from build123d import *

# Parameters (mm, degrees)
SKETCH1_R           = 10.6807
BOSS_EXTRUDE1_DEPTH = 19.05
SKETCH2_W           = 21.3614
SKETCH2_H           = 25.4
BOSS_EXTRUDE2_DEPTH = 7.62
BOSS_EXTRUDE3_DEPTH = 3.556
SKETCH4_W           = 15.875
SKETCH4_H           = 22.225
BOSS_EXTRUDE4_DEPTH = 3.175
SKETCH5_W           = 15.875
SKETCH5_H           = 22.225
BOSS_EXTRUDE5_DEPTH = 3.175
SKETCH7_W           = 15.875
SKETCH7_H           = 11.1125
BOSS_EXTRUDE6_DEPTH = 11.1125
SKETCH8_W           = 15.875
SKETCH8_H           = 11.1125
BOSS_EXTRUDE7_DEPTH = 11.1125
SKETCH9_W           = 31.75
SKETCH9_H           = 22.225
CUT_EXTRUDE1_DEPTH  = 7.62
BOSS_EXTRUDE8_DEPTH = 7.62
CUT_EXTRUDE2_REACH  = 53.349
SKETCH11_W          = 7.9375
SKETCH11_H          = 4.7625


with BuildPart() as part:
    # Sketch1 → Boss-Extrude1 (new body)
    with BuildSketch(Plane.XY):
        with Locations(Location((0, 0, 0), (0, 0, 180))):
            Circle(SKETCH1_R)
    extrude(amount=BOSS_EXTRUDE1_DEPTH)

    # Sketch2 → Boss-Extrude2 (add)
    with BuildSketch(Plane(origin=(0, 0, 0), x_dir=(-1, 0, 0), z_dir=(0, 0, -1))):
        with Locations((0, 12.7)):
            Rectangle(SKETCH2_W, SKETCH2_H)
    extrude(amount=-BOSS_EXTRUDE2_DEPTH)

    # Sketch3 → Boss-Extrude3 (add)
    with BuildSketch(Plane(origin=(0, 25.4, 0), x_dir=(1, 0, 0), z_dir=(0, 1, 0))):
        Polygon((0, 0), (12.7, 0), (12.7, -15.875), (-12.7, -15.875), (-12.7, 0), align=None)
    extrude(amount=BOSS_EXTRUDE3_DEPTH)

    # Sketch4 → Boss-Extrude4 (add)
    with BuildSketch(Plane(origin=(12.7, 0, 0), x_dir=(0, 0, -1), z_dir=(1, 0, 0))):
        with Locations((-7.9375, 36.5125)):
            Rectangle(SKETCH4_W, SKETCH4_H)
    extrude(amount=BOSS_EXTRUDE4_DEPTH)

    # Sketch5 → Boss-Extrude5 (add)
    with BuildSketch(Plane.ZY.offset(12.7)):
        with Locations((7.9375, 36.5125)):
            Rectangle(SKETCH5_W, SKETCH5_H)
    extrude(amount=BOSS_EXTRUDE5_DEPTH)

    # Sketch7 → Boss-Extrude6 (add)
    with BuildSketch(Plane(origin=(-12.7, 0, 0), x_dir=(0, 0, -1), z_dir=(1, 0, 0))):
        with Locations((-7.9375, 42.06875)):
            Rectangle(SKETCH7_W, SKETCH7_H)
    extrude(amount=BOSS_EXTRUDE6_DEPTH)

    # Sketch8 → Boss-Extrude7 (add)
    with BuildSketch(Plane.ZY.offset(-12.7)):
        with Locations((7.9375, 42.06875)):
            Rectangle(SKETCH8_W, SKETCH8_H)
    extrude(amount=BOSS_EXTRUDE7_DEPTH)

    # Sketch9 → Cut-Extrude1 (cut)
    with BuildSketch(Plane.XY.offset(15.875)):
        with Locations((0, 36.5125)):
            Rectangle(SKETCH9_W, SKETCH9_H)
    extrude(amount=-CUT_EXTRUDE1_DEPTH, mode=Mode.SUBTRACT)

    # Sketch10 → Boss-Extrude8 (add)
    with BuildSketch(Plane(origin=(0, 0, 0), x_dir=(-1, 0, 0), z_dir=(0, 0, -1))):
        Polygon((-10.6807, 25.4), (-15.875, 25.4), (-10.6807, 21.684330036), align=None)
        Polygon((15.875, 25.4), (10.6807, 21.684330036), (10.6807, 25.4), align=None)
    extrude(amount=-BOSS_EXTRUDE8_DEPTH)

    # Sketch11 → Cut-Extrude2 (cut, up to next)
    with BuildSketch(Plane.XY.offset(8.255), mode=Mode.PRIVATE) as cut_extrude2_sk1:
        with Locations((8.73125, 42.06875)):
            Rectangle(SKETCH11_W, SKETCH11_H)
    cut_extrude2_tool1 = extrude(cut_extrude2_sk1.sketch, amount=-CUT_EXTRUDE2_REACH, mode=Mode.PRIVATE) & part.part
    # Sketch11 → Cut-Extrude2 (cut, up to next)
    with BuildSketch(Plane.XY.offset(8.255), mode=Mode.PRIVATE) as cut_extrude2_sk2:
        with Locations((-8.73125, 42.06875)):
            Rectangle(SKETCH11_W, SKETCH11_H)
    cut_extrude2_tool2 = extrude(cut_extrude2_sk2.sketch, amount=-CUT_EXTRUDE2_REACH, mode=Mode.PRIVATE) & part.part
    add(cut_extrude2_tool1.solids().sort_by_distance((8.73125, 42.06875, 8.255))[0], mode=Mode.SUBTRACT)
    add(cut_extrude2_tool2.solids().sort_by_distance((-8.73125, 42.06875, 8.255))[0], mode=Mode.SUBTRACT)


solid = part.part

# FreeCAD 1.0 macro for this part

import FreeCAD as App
import Part
import Sketcher

V = App.Vector
Q = App.Units.Quantity

doc = App.newDocument("Part")
params = doc.addObject("Spreadsheet::Sheet", "Params")
for row, (alias, value) in enumerate([
    ("sketch1_diameter", "0.841 in"),
    ("pad1_length", "0.75 in"),
    ("sketch2_height", "1 in"),
    ("sketch2_width", "0.841 in"),
    ("pad2_length", "0.3 in"),
    ("sketch3_width", "1 in"),
    ("sketch3_height", "0.625 in"),
    ("pad3_length", "0.14 in"),
    ("sketch4_width", "0.875 in"),
    ("sketch4_height", "0.625 in"),
    ("pad4_length", "0.125 in"),
    ("sketch5_width", "0.875 in"),
    ("sketch5_height", "0.625 in"),
    ("pad5_length", "0.125 in"),
    ("sketch6_width", "0.4375 in"),
    ("sketch6_height", "0.625 in"),
    ("pad6_length", "0.4375 in"),
    ("sketch7_width", "0.4375 in"),
    ("sketch7_height", "0.625 in"),
    ("pad7_length", "0.4375 in"),
    ("sketch8_width", "1.25 in"),
    ("sketch8_height", "0.875 in"),
    ("pocket1_length", "0.3 in"),
    ("pad8_length", "0.3 in"),
    ("sketch10_width", "0.3125 in"),
    ("sketch10_height", "0.1875 in"),
    ("sketch11_width", "0.3125 in"),
    ("sketch11_height", "0.1875 in"),
], start=1):
    params.set(f"A{row}", alias)
    params.set(f"B{row}", "=" + value)
    params.setAlias(f"B{row}", alias)

body = doc.addObject("PartDesign::Body", "Body")

# Sketch on XY plane
sketch1 = doc.addObject("Sketcher::SketchObject", "Sketch")
body.addObject(sketch1)
sketch1.AttachmentSupport = (doc.XY_Plane, [""])
sketch1.MapMode = "FlatFace"
sketch1.addGeometry(Part.Circle(V(0, 0, 0), V(0, 0, 1), 10.6807), False)
sketch1.addConstraint(Sketcher.Constraint("Coincident", 0, 3, -1, 1))
sketch1.addConstraint(Sketcher.Constraint("Diameter", 0, Q("0.841 in")))
sketch1.setExpression("Constraints[1]", "Params.sketch1_diameter")
pad1 = doc.addObject("PartDesign::Pad", "Pad")
body.addObject(pad1)
pad1.Profile = sketch1
pad1.setExpression("Length", "Params.pad1_length")

# Sketch on XY plane
sketch2 = doc.addObject("Sketcher::SketchObject", "Sketch001")
body.addObject(sketch2)
sketch2.AttachmentSupport = (doc.XY_Plane, [""])
sketch2.MapMode = "FlatFace"
sketch2.addGeometry(Part.LineSegment(V(10.6807, 25.4, 0), V(10.6807, 0, 0)), False)
sketch2.addGeometry(Part.LineSegment(V(10.6807, 0, 0), V(-10.6807, 0, 0)), False)
sketch2.addGeometry(Part.LineSegment(V(-10.6807, 0, 0), V(-10.6807, 25.4, 0)), False)
sketch2.addGeometry(Part.LineSegment(V(-10.6807, 25.4, 0), V(10.6807, 25.4, 0)), False)
sketch2.addConstraint(Sketcher.Constraint("Coincident", 0, 2, 1, 1))
sketch2.addConstraint(Sketcher.Constraint("Coincident", 1, 2, 2, 1))
sketch2.addConstraint(Sketcher.Constraint("Coincident", 2, 2, 3, 1))
sketch2.addConstraint(Sketcher.Constraint("Coincident", 3, 2, 0, 1))
sketch2.addConstraint(Sketcher.Constraint("Vertical", 0))
sketch2.addConstraint(Sketcher.Constraint("Horizontal", 1))
sketch2.addConstraint(Sketcher.Constraint("Vertical", 2))
sketch2.addConstraint(Sketcher.Constraint("Horizontal", 3))
sketch2.addConstraint(Sketcher.Constraint("Symmetric", 0, 2, 1, 2, -1, 1))
sketch2.addConstraint(Sketcher.Constraint("DistanceY", 0, 2, 0, 1, Q("1 in")))
sketch2.addConstraint(Sketcher.Constraint("DistanceX", 1, 2, 1, 1, Q("0.841 in")))
sketch2.setExpression("Constraints[9]", "Params.sketch2_height")
sketch2.setExpression("Constraints[10]", "Params.sketch2_width")
pad2 = doc.addObject("PartDesign::Pad", "Pad001")
body.addObject(pad2)
pad2.Profile = sketch2
pad2.setExpression("Length", "Params.pad2_length")

# Sketch on XZ plane
sketch3 = doc.addObject("Sketcher::SketchObject", "Sketch002")
body.addObject(sketch3)
sketch3.AttachmentSupport = (doc.XZ_Plane, [""])
sketch3.MapMode = "FlatFace"
sketch3.AttachmentOffset = App.Placement(V(0, 0, -1 * 25.4), App.Rotation())
sketch3.addGeometry(Part.LineSegment(V(12.7, 0, 0), V(-12.7, 0, 0)), False)
sketch3.addGeometry(Part.LineSegment(V(-12.7, 0, 0), V(-12.7, 15.875, 0)), False)
sketch3.addGeometry(Part.LineSegment(V(-12.7, 15.875, 0), V(12.7, 15.875, 0)), False)
sketch3.addGeometry(Part.LineSegment(V(12.7, 15.875, 0), V(12.7, 0, 0)), False)
sketch3.addConstraint(Sketcher.Constraint("Coincident", 0, 2, 1, 1))
sketch3.addConstraint(Sketcher.Constraint("Coincident", 1, 2, 2, 1))
sketch3.addConstraint(Sketcher.Constraint("Coincident", 2, 2, 3, 1))
sketch3.addConstraint(Sketcher.Constraint("Coincident", 3, 2, 0, 1))
sketch3.addConstraint(Sketcher.Constraint("Horizontal", 0))
sketch3.addConstraint(Sketcher.Constraint("Vertical", 1))
sketch3.addConstraint(Sketcher.Constraint("Horizontal", 2))
sketch3.addConstraint(Sketcher.Constraint("Vertical", 3))
sketch3.addConstraint(Sketcher.Constraint("Symmetric", 0, 2, 3, 2, -1, 1))
sketch3.addConstraint(Sketcher.Constraint("DistanceX", 0, 2, 0, 1, Q("1 in")))
sketch3.addConstraint(Sketcher.Constraint("DistanceY", 1, 1, 1, 2, Q("0.625 in")))
sketch3.setExpression("Constraints[9]", "Params.sketch3_width")
sketch3.setExpression("Constraints[10]", "Params.sketch3_height")
pad3 = doc.addObject("PartDesign::Pad", "Pad002")
body.addObject(pad3)
pad3.Profile = sketch3
pad3.setExpression("Length", "Params.pad3_length")
pad3.Reversed = True

# Sketch on YZ plane
sketch4 = doc.addObject("Sketcher::SketchObject", "Sketch003")
body.addObject(sketch4)
sketch4.AttachmentSupport = (doc.YZ_Plane, [""])
sketch4.MapMode = "FlatFace"
sketch4.AttachmentOffset = App.Placement(V(0, 0, 0.5 * 25.4), App.Rotation())
sketch4.addGeometry(Part.LineSegment(V(47.625, 15.875, 0), V(25.4, 15.875, 0)), False)
sketch4.addGeometry(Part.LineSegment(V(25.4, 15.875, 0), V(25.4, 0, 0)), False)
sketch4.addGeometry(Part.LineSegment(V(25.4, 0, 0), V(47.625, 0, 0)), False)
sketch4.addGeometry(Part.LineSegment(V(47.625, 0, 0), V(47.625, 15.875, 0)), False)
sketch4.addConstraint(Sketcher.Constraint("Coincident", 0, 2, 1, 1))
sketch4.addConstraint(Sketcher.Constraint("Coincident", 1, 2, 2, 1))
sketch4.addConstraint(Sketcher.Constraint("Coincident", 2, 2, 3, 1))
sketch4.addConstraint(Sketcher.Constraint("Coincident", 3, 2, 0, 1))
sketch4.addConstraint(Sketcher.Constraint("Horizontal", 0))
sketch4.addConstraint(Sketcher.Constraint("Vertical", 1))
sketch4.addConstraint(Sketcher.Constraint("Horizontal", 2))
sketch4.addConstraint(Sketcher.Constraint("Vertical", 3))
sketch4.addConstraint(Sketcher.Constraint("PointOnObject", 1, 2, -1))
sketch4.addConstraint(Sketcher.Constraint("DistanceX", -1, 1, 0, 2, Q("1 in")))
sketch4.addConstraint(Sketcher.Constraint("DistanceX", 0, 2, 0, 1, Q("0.875 in")))
sketch4.addConstraint(Sketcher.Constraint("DistanceY", 1, 2, 1, 1, Q("0.625 in")))
sketch4.setExpression("Constraints[10]", "Params.sketch4_width")
sketch4.setExpression("Constraints[11]", "Params.sketch4_height")
pad4 = doc.addObject("PartDesign::Pad", "Pad003")
body.addObject(pad4)
pad4.Profile = sketch4
pad4.setExpression("Length", "Params.pad4_length")

# Sketch on YZ plane
sketch5 = doc.addObject("Sketcher::SketchObject", "Sketch004")
body.addObject(sketch5)
sketch5.AttachmentSupport = (doc.YZ_Plane, [""])
sketch5.MapMode = "FlatFace"
sketch5.AttachmentOffset = App.Placement(V(0, 0, -0.5 * 25.4), App.Rotation())
sketch5.addGeometry(Part.LineSegment(V(47.625, 0, 0), V(25.4, 0, 0)), False)
sketch5.addGeometry(Part.LineSegment(V(25.4, 0, 0), V(25.4, 15.875, 0)), False)
sketch5.addGeometry(Part.LineSegment(V(25.4, 15.875, 0), V(47.625, 15.875, 0)), False)
sketch5.addGeometry(Part.LineSegment(V(47.625, 15.875, 0), V(47.625, 0, 0)), False)
sketch5.addConstraint(Sketcher.Constraint("Coincident", 0, 2, 1, 1))
sketch5.addConstraint(Sketcher.Constraint("Coincident", 1, 2, 2, 1))
sketch5.addConstraint(Sketcher.Constraint("Coincident", 2, 2, 3, 1))
sketch5.addConstraint(Sketcher.Constraint("Coincident", 3, 2, 0, 1))
sketch5.addConstraint(Sketcher.Constraint("Horizontal", 0))
sketch5.addConstraint(Sketcher.Constraint("Vertical", 1))
sketch5.addConstraint(Sketcher.Constraint("Horizontal", 2))
sketch5.addConstraint(Sketcher.Constraint("Vertical", 3))
sketch5.addConstraint(Sketcher.Constraint("PointOnObject", 0, 2, -1))
sketch5.addConstraint(Sketcher.Constraint("DistanceX", -1, 1, 0, 2, Q("1 in")))
sketch5.addConstraint(Sketcher.Constraint("DistanceX", 0, 2, 0, 1, Q("0.875 in")))
sketch5.addConstraint(Sketcher.Constraint("DistanceY", 1, 1, 1, 2, Q("0.625 in")))
sketch5.setExpression("Constraints[10]", "Params.sketch5_width")
sketch5.setExpression("Constraints[11]", "Params.sketch5_height")
pad5 = doc.addObject("PartDesign::Pad", "Pad004")
body.addObject(pad5)
pad5.Profile = sketch5
pad5.setExpression("Length", "Params.pad5_length")
pad5.Reversed = True

# Sketch on YZ plane
sketch6 = doc.addObject("Sketcher::SketchObject", "Sketch005")
body.addObject(sketch6)
sketch6.AttachmentSupport = (doc.YZ_Plane, [""])
sketch6.MapMode = "FlatFace"
sketch6.AttachmentOffset = App.Placement(V(0, 0, -0.5 * 25.4), App.Rotation())
sketch6.addGeometry(Part.LineSegment(V(47.625, 15.875, 0), V(36.5125, 15.875, 0)), False)
sketch6.addGeometry(Part.LineSegment(V(36.5125, 15.875, 0), V(36.5125, 0, 0)), False)
sketch6.addGeometry(Part.LineSegment(V(36.5125, 0, 0), V(47.625, 0, 0)), False)
sketch6.addGeometry(Part.LineSegment(V(47.625, 0, 0), V(47.625, 15.875, 0)), False)
sketch6.addConstraint(Sketcher.Constraint("Coincident", 0, 2, 1, 1))
sketch6.addConstraint(Sketcher.Constraint("Coincident", 1, 2, 2, 1))
sketch6.addConstraint(Sketcher.Constraint("Coincident", 2, 2, 3, 1))
sketch6.addConstraint(Sketcher.Constraint("Coincident", 3, 2, 0, 1))
sketch6.addConstraint(Sketcher.Constraint("Horizontal", 0))
sketch6.addConstraint(Sketcher.Constraint("Vertical", 1))
sketch6.addConstraint(Sketcher.Constraint("Horizontal", 2))
sketch6.addConstraint(Sketcher.Constraint("Vertical", 3))
sketch6.addConstraint(Sketcher.Constraint("PointOnObject", 1, 2, -1))
sketch6.addConstraint(Sketcher.Constraint("DistanceX", 0, 2, 0, 1, Q("0.4375 in")))
sketch6.addConstraint(Sketcher.Constraint("DistanceY", 1, 2, 1, 1, Q("0.625 in")))
sketch6.addConstraint(Sketcher.Constraint("DistanceX", -1, 1, 0, 2, Q("1.4375 in")))
sketch6.setExpression("Constraints[9]", "Params.sketch6_width")
sketch6.setExpression("Constraints[10]", "Params.sketch6_height")
pad6 = doc.addObject("PartDesign::Pad", "Pad005")
body.addObject(pad6)
pad6.Profile = sketch6
pad6.setExpression("Length", "Params.pad6_length")

# Sketch on YZ plane
sketch7 = doc.addObject("Sketcher::SketchObject", "Sketch006")
body.addObject(sketch7)
sketch7.AttachmentSupport = (doc.YZ_Plane, [""])
sketch7.MapMode = "FlatFace"
sketch7.AttachmentOffset = App.Placement(V(0, 0, 0.5 * 25.4), App.Rotation())
sketch7.addGeometry(Part.LineSegment(V(47.625, 0, 0), V(36.5125, 0, 0)), False)
sketch7.addGeometry(Part.LineSegment(V(36.5125, 0, 0), V(36.5125, 15.875, 0)), False)
sketch7.addGeometry(Part.LineSegment(V(36.5125, 15.875, 0), V(47.625, 15.875, 0)), False)
sketch7.addGeometry(Part.LineSegment(V(47.625, 15.875, 0), V(47.625, 0, 0)), False)
sketch7.addConstraint(Sketcher.Constraint("Coincident", 0, 2, 1, 1))
sketch7.addConstraint(Sketcher.Constraint("Coincident", 1, 2, 2, 1))
sketch7.addConstraint(Sketcher.Constraint("Coincident", 2, 2, 3, 1))
sketch7.addConstraint(Sketcher.Constraint("Coincident", 3, 2, 0, 1))
sketch7.addConstraint(Sketcher.Constraint("Horizontal", 0))
sketch7.addConstraint(Sketcher.Constraint("Vertical", 1))
sketch7.addConstraint(Sketcher.Constraint("Horizontal", 2))
sketch7.addConstraint(Sketcher.Constraint("Vertical", 3))
sketch7.addConstraint(Sketcher.Constraint("PointOnObject", 0, 2, -1))
sketch7.addConstraint(Sketcher.Constraint("DistanceX", 0, 2, 0, 1, Q("0.4375 in")))
sketch7.addConstraint(Sketcher.Constraint("DistanceY", 1, 1, 1, 2, Q("0.625 in")))
sketch7.addConstraint(Sketcher.Constraint("DistanceX", -1, 1, 0, 2, Q("1.4375 in")))
sketch7.setExpression("Constraints[9]", "Params.sketch7_width")
sketch7.setExpression("Constraints[10]", "Params.sketch7_height")
pad7 = doc.addObject("PartDesign::Pad", "Pad006")
body.addObject(pad7)
pad7.Profile = sketch7
pad7.setExpression("Length", "Params.pad7_length")
pad7.Reversed = True

# Sketch on XY plane
sketch8 = doc.addObject("Sketcher::SketchObject", "Sketch007")
body.addObject(sketch8)
sketch8.AttachmentSupport = (doc.XY_Plane, [""])
sketch8.MapMode = "FlatFace"
sketch8.AttachmentOffset = App.Placement(V(0, 0, 0.625 * 25.4), App.Rotation())
sketch8.addGeometry(Part.LineSegment(V(-15.875, 47.625, 0), V(-15.875, 25.4, 0)), False)
sketch8.addGeometry(Part.LineSegment(V(-15.875, 25.4, 0), V(15.875, 25.4, 0)), False)
sketch8.addGeometry(Part.LineSegment(V(15.875, 25.4, 0), V(15.875, 47.625, 0)), False)
sketch8.addGeometry(Part.LineSegment(V(15.875, 47.625, 0), V(-15.875, 47.625, 0)), False)
sketch8.addConstraint(Sketcher.Constraint("Coincident", 0, 2, 1, 1))
sketch8.addConstraint(Sketcher.Constraint("Coincident", 1, 2, 2, 1))
sketch8.addConstraint(Sketcher.Constraint("Coincident", 2, 2, 3, 1))
sketch8.addConstraint(Sketcher.Constraint("Coincident", 3, 2, 0, 1))
sketch8.addConstraint(Sketcher.Constraint("Vertical", 0))
sketch8.addConstraint(Sketcher.Constraint("Horizontal", 1))
sketch8.addConstraint(Sketcher.Constraint("Vertical", 2))
sketch8.addConstraint(Sketcher.Constraint("Horizontal", 3))
sketch8.addConstraint(Sketcher.Constraint("DistanceY", -1, 1, 0, 2, Q("1 in")))
sketch8.addConstraint(Sketcher.Constraint("DistanceX", 1, 1, 1, 2, Q("1.25 in")))
sketch8.addConstraint(Sketcher.Constraint("DistanceY", 0, 2, 0, 1, Q("0.875 in")))
sketch8.addConstraint(Sketcher.Constraint("DistanceX", 0, 2, -1, 1, Q("0.625 in")))
sketch8.setExpression("Constraints[9]", "Params.sketch8_width")
sketch8.setExpression("Constraints[10]", "Params.sketch8_height")
pocket1 = doc.addObject("PartDesign::Pocket", "Pocket")
body.addObject(pocket1)
pocket1.Profile = sketch8
pocket1.setExpression("Length", "Params.pocket1_length")

# Sketch on XY plane
sketch9 = doc.addObject("Sketcher::SketchObject", "Sketch008")
body.addObject(sketch9)
sketch9.AttachmentSupport = (doc.XY_Plane, [""])
sketch9.MapMode = "FlatFace"
sketch9.addGeometry(Part.LineSegment(V(10.6807, 25.4, 0), V(15.875, 25.4, 0)), False)
sketch9.addGeometry(Part.LineSegment(V(15.875, 25.4, 0), V(10.6807, 21.68433, 0)), False)
sketch9.addGeometry(Part.LineSegment(V(10.6807, 21.68433, 0), V(10.6807, 25.4, 0)), False)
sketch9.addGeometry(Part.LineSegment(V(-10.6807, 21.68433, 0), V(-15.875, 25.4, 0)), False)
sketch9.addGeometry(Part.LineSegment(V(-15.875, 25.4, 0), V(-10.6807, 25.4, 0)), False)
sketch9.addGeometry(Part.LineSegment(V(-10.6807, 25.4, 0), V(-10.6807, 21.68433, 0)), False)
sketch9.addConstraint(Sketcher.Constraint("Coincident", 0, 2, 1, 1))
sketch9.addConstraint(Sketcher.Constraint("Coincident", 1, 2, 2, 1))
sketch9.addConstraint(Sketcher.Constraint("Coincident", 2, 2, 0, 1))
sketch9.addConstraint(Sketcher.Constraint("Coincident", 3, 2, 4, 1))
sketch9.addConstraint(Sketcher.Constraint("Coincident", 4, 2, 5, 1))
sketch9.addConstraint(Sketcher.Constraint("Coincident", 5, 2, 3, 1))
sketch9.addConstraint(Sketcher.Constraint("Horizontal", 0))
sketch9.addConstraint(Sketcher.Constraint("Vertical", 2))
sketch9.addConstraint(Sketcher.Constraint("Horizontal", 4))
sketch9.addConstraint(Sketcher.Constraint("Vertical", 5))
sketch9.addConstraint(Sketcher.Constraint("Symmetric", 0, 2, 3, 2, -2))
sketch9.addConstraint(Sketcher.Constraint("Symmetric", 1, 2, 5, 2, -2))
sketch9.addConstraint(Sketcher.Constraint("DistanceY", -1, 1, 0, 2, Q("1 in")))
sketch9.addConstraint(Sketcher.Constraint("DistanceX", 3, 2, 0, 2, Q("1.25 in")))
sketch9.addConstraint(Sketcher.Constraint("DistanceX", 0, 1, 0, 2, Q("0.2045 in")))
sketch9.addConstraint(Sketcher.Constraint("DistanceY", 2, 1, 2, 2, 3.71567))
pad8 = doc.addObject("PartDesign::Pad", "Pad007")
body.addObject(pad8)
pad8.Profile = sketch9
pad8.setExpression("Length", "Params.pad8_length")

# Sketch on XY plane
sketch10 = doc.addObject("Sketcher::SketchObject", "Sketch009")
body.addObject(sketch10)
sketch10.AttachmentSupport = (doc.XY_Plane, [""])
sketch10.MapMode = "FlatFace"
sketch10.AttachmentOffset = App.Placement(V(0, 0, 0.325 * 25.4), App.Rotation())
sketch10.addGeometry(Part.LineSegment(V(4.7625, 44.45, 0), V(4.7625, 39.6875, 0)), False)
sketch10.addGeometry(Part.LineSegment(V(4.7625, 39.6875, 0), V(12.7, 39.6875, 0)), False)
sketch10.addGeometry(Part.LineSegment(V(12.7, 39.6875, 0), V(12.7, 44.45, 0)), False)
sketch10.addGeometry(Part.LineSegment(V(12.7, 44.45, 0), V(4.7625, 44.45, 0)), False)
sketch10.addConstraint(Sketcher.Constraint("Coincident", 0, 2, 1, 1))
sketch10.addConstraint(Sketcher.Constraint("Coincident", 1, 2, 2, 1))
sketch10.addConstraint(Sketcher.Constraint("Coincident", 2, 2, 3, 1))
sketch10.addConstraint(Sketcher.Constraint("Coincident", 3, 2, 0, 1))
sketch10.addConstraint(Sketcher.Constraint("Vertical", 0))
sketch10.addConstraint(Sketcher.Constraint("Horizontal", 1))
sketch10.addConstraint(Sketcher.Constraint("Vertical", 2))
sketch10.addConstraint(Sketcher.Constraint("Horizontal", 3))
sketch10.addConstraint(Sketcher.Constraint("DistanceX", -1, 1, 1, 2, Q("0.5 in")))
sketch10.addConstraint(Sketcher.Constraint("DistanceX", 1, 1, 1, 2, Q("0.3125 in")))
sketch10.addConstraint(Sketcher.Constraint("DistanceY", 0, 2, 0, 1, Q("0.1875 in")))
sketch10.addConstraint(Sketcher.Constraint("DistanceY", -1, 1, 2, 2, Q("1.75 in")))
sketch10.setExpression("Constraints[9]", "Params.sketch10_width")
sketch10.setExpression("Constraints[10]", "Params.sketch10_height")
pocket2 = doc.addObject("PartDesign::Pocket", "Pocket001")
body.addObject(pocket2)
pocket2.Profile = sketch10
pocket2.Type = "UpToFirst"

# Sketch on XY plane
sketch11 = doc.addObject("Sketcher::SketchObject", "Sketch010")
body.addObject(sketch11)
sketch11.AttachmentSupport = (doc.XY_Plane, [""])
sketch11.MapMode = "FlatFace"
sketch11.AttachmentOffset = App.Placement(V(0, 0, 0.325 * 25.4), App.Rotation())
sketch11.addGeometry(Part.LineSegment(V(-12.7, 44.45, 0), V(-12.7, 39.6875, 0)), False)
sketch11.addGeometry(Part.LineSegment(V(-12.7, 39.6875, 0), V(-4.7625, 39.6875, 0)), False)
sketch11.addGeometry(Part.LineSegment(V(-4.7625, 39.6875, 0), V(-4.7625, 44.45, 0)), False)
sketch11.addGeometry(Part.LineSegment(V(-4.7625, 44.45, 0), V(-12.7, 44.45, 0)), False)
sketch11.addConstraint(Sketcher.Constraint("Coincident", 0, 2, 1, 1))
sketch11.addConstraint(Sketcher.Constraint("Coincident", 1, 2, 2, 1))
sketch11.addConstraint(Sketcher.Constraint("Coincident", 2, 2, 3, 1))
sketch11.addConstraint(Sketcher.Constraint("Coincident", 3, 2, 0, 1))
sketch11.addConstraint(Sketcher.Constraint("Vertical", 0))
sketch11.addConstraint(Sketcher.Constraint("Horizontal", 1))
sketch11.addConstraint(Sketcher.Constraint("Vertical", 2))
sketch11.addConstraint(Sketcher.Constraint("Horizontal", 3))
sketch11.addConstraint(Sketcher.Constraint("DistanceX", 0, 2, -1, 1, Q("0.5 in")))
sketch11.addConstraint(Sketcher.Constraint("DistanceX", 1, 1, 1, 2, Q("0.3125 in")))
sketch11.addConstraint(Sketcher.Constraint("DistanceY", 0, 2, 0, 1, Q("0.1875 in")))
sketch11.addConstraint(Sketcher.Constraint("DistanceY", -1, 1, 2, 2, Q("1.75 in")))
sketch11.setExpression("Constraints[9]", "Params.sketch11_width")
sketch11.setExpression("Constraints[10]", "Params.sketch11_height")
pocket3 = doc.addObject("PartDesign::Pocket", "Pocket002")
body.addObject(pocket3)
pocket3.Profile = sketch11
pocket3.Type = "UpToFirst"

doc.recompute()
